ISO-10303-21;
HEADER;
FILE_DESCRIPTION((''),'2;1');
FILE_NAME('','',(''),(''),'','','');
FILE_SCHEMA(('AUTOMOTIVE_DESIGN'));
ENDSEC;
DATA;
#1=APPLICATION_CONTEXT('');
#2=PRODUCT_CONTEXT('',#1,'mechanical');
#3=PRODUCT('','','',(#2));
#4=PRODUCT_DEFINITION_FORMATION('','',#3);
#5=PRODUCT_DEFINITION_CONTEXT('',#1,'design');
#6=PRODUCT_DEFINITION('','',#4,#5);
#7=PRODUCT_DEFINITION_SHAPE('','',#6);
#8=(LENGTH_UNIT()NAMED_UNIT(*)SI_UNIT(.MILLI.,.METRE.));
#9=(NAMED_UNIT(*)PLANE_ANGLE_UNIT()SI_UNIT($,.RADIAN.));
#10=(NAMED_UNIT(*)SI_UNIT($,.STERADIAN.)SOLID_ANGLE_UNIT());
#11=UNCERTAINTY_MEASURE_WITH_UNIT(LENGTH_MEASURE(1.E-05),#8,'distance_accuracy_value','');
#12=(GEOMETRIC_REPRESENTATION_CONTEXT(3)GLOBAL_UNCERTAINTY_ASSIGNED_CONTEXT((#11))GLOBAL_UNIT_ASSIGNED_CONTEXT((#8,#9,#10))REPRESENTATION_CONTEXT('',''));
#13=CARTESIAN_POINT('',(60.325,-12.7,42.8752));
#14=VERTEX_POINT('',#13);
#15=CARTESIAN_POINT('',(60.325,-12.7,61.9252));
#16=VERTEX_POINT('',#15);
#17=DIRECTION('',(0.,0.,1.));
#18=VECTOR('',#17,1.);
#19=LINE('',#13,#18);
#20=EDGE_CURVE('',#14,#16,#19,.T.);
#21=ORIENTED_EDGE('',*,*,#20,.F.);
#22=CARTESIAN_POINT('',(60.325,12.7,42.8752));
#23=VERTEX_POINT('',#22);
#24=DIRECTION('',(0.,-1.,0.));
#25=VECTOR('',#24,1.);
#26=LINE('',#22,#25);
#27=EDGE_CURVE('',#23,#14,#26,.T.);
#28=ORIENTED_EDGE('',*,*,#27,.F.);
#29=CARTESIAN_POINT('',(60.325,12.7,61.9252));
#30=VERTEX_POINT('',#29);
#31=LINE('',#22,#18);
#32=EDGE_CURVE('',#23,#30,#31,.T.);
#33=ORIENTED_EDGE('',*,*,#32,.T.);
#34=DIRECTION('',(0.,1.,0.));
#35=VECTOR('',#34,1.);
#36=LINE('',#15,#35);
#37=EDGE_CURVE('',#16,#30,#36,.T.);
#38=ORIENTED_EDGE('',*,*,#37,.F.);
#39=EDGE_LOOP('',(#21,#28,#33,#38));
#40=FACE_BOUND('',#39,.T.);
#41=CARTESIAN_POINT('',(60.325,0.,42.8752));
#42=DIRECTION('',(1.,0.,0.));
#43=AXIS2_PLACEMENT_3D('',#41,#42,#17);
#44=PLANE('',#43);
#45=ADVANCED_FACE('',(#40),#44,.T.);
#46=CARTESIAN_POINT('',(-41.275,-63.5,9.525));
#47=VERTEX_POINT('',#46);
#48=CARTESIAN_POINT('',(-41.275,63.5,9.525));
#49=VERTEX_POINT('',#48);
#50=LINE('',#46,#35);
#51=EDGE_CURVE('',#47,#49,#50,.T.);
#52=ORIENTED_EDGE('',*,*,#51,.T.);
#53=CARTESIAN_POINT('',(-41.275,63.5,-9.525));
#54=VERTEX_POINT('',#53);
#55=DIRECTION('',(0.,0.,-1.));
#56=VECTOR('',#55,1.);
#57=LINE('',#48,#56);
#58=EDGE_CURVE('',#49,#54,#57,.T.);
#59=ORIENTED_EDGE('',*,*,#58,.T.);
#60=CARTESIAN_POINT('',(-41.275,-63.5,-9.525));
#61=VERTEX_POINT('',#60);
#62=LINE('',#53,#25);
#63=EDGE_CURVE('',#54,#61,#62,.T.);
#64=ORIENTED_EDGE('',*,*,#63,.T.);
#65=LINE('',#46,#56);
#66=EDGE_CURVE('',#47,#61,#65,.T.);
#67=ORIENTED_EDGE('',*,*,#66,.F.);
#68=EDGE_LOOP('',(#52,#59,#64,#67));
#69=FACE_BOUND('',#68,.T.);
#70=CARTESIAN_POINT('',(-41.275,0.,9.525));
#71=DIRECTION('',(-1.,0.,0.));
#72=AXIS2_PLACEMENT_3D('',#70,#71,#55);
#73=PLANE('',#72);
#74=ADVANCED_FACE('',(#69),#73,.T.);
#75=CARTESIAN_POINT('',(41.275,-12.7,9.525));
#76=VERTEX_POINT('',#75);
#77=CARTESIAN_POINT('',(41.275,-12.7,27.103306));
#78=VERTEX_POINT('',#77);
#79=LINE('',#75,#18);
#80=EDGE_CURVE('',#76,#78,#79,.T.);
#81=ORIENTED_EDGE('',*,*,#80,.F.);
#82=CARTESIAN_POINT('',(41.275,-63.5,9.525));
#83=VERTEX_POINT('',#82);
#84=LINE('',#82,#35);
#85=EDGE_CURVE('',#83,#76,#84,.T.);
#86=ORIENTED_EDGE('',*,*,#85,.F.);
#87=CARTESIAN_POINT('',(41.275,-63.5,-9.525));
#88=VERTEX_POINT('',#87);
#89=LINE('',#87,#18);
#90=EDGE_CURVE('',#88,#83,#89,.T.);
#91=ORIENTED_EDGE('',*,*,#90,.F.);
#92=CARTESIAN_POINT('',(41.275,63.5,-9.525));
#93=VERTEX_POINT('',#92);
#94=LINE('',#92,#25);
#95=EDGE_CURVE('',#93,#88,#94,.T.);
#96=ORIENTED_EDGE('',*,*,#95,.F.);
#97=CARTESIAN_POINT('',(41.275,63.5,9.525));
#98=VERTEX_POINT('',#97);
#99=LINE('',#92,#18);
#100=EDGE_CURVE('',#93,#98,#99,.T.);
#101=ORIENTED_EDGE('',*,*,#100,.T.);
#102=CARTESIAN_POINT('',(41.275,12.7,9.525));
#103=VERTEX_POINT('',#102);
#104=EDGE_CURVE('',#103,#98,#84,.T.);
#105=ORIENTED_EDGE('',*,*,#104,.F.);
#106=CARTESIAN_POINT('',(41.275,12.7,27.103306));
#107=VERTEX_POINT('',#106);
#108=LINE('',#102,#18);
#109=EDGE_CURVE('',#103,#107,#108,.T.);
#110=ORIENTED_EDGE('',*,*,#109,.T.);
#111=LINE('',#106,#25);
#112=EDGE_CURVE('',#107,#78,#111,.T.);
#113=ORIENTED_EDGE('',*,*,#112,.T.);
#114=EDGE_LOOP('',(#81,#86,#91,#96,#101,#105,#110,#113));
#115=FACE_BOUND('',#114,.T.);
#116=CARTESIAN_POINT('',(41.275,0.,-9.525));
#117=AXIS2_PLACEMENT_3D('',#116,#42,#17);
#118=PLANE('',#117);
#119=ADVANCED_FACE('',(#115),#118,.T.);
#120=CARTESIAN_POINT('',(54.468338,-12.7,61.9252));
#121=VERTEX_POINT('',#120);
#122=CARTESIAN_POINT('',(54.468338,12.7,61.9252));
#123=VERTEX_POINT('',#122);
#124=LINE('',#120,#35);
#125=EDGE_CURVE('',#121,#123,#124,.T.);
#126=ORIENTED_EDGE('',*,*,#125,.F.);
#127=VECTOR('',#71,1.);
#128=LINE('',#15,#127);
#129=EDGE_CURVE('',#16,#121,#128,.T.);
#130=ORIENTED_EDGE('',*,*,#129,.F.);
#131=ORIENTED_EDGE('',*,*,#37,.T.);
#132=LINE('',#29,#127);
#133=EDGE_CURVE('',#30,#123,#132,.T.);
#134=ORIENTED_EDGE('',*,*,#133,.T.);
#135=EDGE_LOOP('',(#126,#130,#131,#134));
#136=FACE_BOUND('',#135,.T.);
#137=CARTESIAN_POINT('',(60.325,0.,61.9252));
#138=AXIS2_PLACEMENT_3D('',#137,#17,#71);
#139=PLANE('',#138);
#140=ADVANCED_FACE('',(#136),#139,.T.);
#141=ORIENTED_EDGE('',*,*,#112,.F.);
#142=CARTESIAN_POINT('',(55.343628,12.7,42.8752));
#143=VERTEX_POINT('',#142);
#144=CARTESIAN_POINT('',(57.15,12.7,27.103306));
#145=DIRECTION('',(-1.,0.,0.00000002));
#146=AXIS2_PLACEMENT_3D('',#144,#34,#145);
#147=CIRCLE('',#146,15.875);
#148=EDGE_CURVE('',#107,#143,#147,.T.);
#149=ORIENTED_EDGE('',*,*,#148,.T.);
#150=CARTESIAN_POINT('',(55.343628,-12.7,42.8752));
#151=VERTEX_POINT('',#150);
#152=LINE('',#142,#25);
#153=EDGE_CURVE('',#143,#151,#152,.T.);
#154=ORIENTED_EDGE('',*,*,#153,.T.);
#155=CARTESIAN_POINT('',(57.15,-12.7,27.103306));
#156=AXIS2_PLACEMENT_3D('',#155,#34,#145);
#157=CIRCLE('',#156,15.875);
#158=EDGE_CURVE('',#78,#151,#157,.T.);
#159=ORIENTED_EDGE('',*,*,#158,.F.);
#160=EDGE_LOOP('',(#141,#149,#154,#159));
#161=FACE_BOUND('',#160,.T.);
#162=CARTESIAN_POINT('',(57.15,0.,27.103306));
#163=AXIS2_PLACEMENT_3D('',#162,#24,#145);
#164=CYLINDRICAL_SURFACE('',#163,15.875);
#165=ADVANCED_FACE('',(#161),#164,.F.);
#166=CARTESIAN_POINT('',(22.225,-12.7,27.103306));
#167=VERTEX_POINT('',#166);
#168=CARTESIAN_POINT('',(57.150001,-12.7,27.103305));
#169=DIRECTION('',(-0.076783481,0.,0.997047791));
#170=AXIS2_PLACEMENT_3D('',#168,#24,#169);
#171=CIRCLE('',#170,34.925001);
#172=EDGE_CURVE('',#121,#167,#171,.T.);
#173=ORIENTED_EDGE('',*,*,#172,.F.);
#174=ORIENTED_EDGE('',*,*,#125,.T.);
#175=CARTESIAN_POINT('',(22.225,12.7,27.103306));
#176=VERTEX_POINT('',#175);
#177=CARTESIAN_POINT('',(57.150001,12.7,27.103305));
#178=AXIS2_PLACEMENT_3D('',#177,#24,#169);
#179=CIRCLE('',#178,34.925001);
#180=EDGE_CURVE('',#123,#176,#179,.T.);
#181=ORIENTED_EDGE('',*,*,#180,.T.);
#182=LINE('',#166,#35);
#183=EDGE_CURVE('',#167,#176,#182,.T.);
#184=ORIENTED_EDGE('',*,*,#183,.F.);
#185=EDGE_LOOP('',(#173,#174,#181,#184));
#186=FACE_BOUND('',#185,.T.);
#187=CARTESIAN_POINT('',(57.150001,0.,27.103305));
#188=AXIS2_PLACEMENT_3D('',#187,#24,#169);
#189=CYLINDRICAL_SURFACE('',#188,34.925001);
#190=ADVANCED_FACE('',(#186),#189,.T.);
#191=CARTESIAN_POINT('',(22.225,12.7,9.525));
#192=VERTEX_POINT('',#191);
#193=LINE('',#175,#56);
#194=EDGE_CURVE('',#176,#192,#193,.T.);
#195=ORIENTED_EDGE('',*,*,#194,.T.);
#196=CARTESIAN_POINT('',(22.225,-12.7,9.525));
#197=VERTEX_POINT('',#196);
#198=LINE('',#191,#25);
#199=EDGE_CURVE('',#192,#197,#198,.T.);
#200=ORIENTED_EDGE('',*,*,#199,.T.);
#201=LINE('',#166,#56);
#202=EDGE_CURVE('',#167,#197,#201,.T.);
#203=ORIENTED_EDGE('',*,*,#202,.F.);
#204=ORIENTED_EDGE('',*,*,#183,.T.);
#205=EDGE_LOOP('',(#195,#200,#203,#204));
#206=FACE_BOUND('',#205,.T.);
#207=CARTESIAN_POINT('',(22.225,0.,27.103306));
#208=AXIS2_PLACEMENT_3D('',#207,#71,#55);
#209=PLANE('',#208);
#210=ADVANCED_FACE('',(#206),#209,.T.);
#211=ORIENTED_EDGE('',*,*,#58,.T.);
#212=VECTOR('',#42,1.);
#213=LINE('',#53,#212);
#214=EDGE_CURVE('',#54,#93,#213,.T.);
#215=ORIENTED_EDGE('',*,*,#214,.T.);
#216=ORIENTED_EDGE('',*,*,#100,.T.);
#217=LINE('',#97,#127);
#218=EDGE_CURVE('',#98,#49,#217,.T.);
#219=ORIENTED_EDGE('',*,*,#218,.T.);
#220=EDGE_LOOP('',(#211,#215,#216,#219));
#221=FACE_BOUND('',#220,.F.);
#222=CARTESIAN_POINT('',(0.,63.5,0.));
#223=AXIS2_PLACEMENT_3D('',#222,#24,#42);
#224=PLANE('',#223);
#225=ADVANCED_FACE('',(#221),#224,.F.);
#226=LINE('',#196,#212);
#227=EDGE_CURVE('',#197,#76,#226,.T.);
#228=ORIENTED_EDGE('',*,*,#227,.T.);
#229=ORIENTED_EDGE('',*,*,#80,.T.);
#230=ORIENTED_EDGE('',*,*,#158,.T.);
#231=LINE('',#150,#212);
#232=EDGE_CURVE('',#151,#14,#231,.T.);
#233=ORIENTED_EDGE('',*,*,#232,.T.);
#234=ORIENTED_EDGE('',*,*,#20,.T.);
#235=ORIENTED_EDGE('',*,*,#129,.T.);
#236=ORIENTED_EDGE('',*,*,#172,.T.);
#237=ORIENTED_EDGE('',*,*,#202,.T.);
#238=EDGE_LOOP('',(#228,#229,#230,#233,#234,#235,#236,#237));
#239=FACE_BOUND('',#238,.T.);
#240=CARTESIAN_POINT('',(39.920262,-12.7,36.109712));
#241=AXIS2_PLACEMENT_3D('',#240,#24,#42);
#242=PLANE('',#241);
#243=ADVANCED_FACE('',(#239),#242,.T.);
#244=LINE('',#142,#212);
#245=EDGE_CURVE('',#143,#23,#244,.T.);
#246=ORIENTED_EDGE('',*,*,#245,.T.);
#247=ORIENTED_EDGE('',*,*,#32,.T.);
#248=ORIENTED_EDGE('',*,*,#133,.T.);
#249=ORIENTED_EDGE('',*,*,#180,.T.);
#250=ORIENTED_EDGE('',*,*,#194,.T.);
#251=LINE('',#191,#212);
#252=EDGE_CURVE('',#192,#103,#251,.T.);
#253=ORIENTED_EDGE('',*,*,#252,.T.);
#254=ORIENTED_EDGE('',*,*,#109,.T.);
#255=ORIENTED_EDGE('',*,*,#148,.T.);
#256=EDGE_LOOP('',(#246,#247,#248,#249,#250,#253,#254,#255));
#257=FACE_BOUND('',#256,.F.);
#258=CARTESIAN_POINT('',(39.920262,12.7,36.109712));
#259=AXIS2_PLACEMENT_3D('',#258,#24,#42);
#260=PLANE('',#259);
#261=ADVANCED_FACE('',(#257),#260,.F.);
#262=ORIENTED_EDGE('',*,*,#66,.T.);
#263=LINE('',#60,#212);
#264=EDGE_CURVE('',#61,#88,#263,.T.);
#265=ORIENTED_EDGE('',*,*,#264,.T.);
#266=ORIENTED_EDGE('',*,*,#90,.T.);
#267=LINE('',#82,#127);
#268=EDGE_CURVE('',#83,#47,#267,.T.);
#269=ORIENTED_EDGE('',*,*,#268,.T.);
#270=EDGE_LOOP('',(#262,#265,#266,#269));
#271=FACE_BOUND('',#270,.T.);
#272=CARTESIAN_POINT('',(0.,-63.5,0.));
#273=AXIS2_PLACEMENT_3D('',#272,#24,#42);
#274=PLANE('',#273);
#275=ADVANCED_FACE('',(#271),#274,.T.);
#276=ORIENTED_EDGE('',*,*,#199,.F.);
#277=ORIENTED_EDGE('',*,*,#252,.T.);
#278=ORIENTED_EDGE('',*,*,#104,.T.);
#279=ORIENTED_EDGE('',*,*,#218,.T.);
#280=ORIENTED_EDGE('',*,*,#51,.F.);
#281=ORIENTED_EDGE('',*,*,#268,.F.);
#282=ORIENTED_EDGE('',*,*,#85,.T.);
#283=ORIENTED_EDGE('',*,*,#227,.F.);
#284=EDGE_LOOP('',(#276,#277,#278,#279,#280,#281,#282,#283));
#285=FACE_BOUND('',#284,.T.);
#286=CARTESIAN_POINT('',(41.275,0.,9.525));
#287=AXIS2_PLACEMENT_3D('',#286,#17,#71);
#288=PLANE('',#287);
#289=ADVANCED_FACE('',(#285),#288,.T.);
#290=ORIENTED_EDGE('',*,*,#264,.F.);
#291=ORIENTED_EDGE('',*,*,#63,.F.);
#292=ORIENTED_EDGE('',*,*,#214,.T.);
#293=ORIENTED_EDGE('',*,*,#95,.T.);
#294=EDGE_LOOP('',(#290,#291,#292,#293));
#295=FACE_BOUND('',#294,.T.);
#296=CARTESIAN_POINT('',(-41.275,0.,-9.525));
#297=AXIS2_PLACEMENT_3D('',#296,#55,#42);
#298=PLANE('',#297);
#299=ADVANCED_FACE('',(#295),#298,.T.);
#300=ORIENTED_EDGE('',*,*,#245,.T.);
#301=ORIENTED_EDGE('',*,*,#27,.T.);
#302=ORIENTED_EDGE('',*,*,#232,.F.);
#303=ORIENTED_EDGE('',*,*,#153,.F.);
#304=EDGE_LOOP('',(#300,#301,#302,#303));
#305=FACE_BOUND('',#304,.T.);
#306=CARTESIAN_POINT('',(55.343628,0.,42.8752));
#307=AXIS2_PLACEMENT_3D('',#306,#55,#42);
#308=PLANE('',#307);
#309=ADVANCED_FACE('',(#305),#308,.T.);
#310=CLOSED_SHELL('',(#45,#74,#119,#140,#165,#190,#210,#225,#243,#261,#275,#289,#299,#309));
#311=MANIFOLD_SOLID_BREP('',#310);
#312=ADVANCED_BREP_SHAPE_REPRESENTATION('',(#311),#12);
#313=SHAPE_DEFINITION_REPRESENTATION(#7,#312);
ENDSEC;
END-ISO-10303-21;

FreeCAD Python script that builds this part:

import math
import FreeCAD as App
import Part
import Sketcher

V = App.Vector
Q = App.Units.Quantity


def add_polygon(sketch, points):
    """Adds a closed chain of lines whose ends are joined by coincident constraints."""
    first, n = sketch.GeometryCount, len(points)
    for a, b in zip(points, points[1:] + points[:1]):
        sketch.addGeometry(Part.LineSegment(App.Vector(*a, 0), App.Vector(*b, 0)), False)
    for i in range(n):
        sketch.addConstraint(Sketcher.Constraint("Coincident", first + i, 2, first + (i + 1) % n, 1))

doc = App.newDocument("Part")
body = doc.addObject("PartDesign::Body", "Body")

# Sketch on XZ plane
sketch1 = doc.addObject("Sketcher::SketchObject", "Sketch")
body.addObject(sketch1)
sketch1.AttachmentSupport = (doc.XZ_Plane, [""])
sketch1.MapMode = "FlatFace"
sketch1.addGeometry([
    Part.LineSegment(V(22.2, 27.1, 0), V(22.2, 9.5, 0)),  # 0
    Part.LineSegment(V(22.2, 9.5, 0), V(41.3, 9.5, 0)),  # 1
    Part.LineSegment(V(41.3, 9.5, 0), V(41.3, 27.1, 0)),  # 2
    Part.ArcOfCircle(Part.Circle(V(57.2, 27.1, 0), V(0, 0, 1), 15.9), math.radians(97), math.radians(180)),  # 3
    Part.LineSegment(V(55.3, 42.9, 0), V(60.3, 42.9, 0)),  # 4
    Part.LineSegment(V(60.3, 42.9, 0), V(60.3, 61.9, 0)),  # 5
    Part.LineSegment(V(60.3, 61.9, 0), V(54.5, 61.9, 0)),  # 6
    Part.ArcOfCircle(Part.Circle(V(57.2, 27.1, 0), V(0, 0, 1), 34.9), math.radians(94), math.radians(180)),  # 7
], False)
sketch1.addConstraint([
    Sketcher.Constraint("Coincident", 0, 2, 1, 1),
    Sketcher.Constraint("Coincident", 1, 2, 2, 1),
    Sketcher.Constraint("Tangent", 2, 2, 3, 2),
    Sketcher.Constraint("Coincident", 3, 1, 4, 1),
    Sketcher.Constraint("Coincident", 4, 2, 5, 1),
    Sketcher.Constraint("Coincident", 5, 2, 6, 1),
    Sketcher.Constraint("Coincident", 6, 2, 7, 1),
    Sketcher.Constraint("Tangent", 7, 2, 0, 1),
    Sketcher.Constraint("Vertical", 0),
    Sketcher.Constraint("Horizontal", 1),
    Sketcher.Constraint("Vertical", 2),
    Sketcher.Constraint("Horizontal", 4),
    Sketcher.Constraint("Vertical", 5),
    Sketcher.Constraint("Horizontal", 6),
    Sketcher.Constraint("Coincident", 7, 3, 3, 3),
    Sketcher.Constraint("Equal", 1, 5),
    Sketcher.Constraint("Radius", 3, Q("0.625 in")),
    Sketcher.Constraint("Radius", 7, Q("1.375 in")),
    Sketcher.Constraint("DistanceX", -1, 1, 3, 3, Q("2.25 in")),
    Sketcher.Constraint("DistanceX", 2, 2, 4, 2, Q("0.75 in")),
    Sketcher.Constraint("DistanceY", -1, 1, 0, 2, Q("0.375 in")),
    Sketcher.Constraint("DistanceY", -1, 1, 3, 1, Q("1.688 in")),
    Sketcher.Constraint("DistanceX", 4, 1, 4, 2, Q("4.981372 mm")),
])
pad1 = doc.addObject("PartDesign::Pad", "Pad")
body.addObject(pad1)
pad1.Profile = sketch1
pad1.Length = Q("1 in")
pad1.Midplane = True

# Sketch on XZ plane
sketch2 = doc.addObject("Sketcher::SketchObject", "Sketch001")
body.addObject(sketch2)
sketch2.AttachmentSupport = (doc.XZ_Plane, [""])
sketch2.MapMode = "FlatFace"
add_polygon(sketch2, [(-41, 10), (-41, -10), (41, -10), (41, 10)])  # lines 0-3
sketch2.addConstraint([
    Sketcher.Constraint("Vertical", 0),
    Sketcher.Constraint("Horizontal", 1),
    Sketcher.Constraint("Vertical", 2),
    Sketcher.Constraint("Horizontal", 3),
    Sketcher.Constraint("Symmetric", 0, 2, 2, 2, -1, 1),
    Sketcher.Constraint("DistanceX", 1, 1, 1, 2, Q("3.25 in")),
    Sketcher.Constraint("DistanceY", 0, 2, 0, 1, Q("0.75 in")),
])
pad2 = doc.addObject("PartDesign::Pad", "Pad001")
body.addObject(pad2)
pad2.Profile = sketch2
pad2.Length = Q("5 in")
pad2.Midplane = True

doc.recompute()
